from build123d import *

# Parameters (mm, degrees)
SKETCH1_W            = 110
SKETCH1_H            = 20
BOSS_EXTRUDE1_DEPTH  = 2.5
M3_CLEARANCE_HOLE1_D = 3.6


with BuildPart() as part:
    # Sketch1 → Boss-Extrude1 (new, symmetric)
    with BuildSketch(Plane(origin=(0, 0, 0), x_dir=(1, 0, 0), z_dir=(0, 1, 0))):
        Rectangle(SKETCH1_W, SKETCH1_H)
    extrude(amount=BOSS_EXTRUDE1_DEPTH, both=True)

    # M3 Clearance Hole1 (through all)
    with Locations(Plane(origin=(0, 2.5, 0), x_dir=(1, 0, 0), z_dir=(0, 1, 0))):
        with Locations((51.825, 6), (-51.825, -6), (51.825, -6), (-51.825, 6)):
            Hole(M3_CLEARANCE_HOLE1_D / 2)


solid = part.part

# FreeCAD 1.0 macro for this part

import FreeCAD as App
import Part
import Sketcher
from FreeCAD import Vector
Q = App.Units.Quantity


def add_polygon(sketch, points):
    """Adds a closed chain of lines whose ends are joined by coincident constraints."""
    first, n = sketch.GeometryCount, len(points)
    for a, b in zip(points, points[1:] + points[:1]):
        sketch.addGeometry(Part.LineSegment(App.Vector(*a, 0), App.Vector(*b, 0)), False)
    for i in range(n):
        sketch.addConstraint(Sketcher.Constraint("Coincident", first + i, 2, first + (i + 1) % n, 1))

doc = App.newDocument("Part")
body = doc.addObject("PartDesign::Body", "Body")

sketch1 = body.newObject("Sketcher::SketchObject", "Sketch")
sketch1.AttachmentSupport = (doc.getObject("XZ_Plane"), [""])
sketch1.MapMode = "FlatFace"
add_polygon(sketch1, [(-55, -10), (-55, 10), (55, 10), (55, -10)])
sketch1.addConstraint(Sketcher.Constraint("Vertical", 0))
sketch1.addConstraint(Sketcher.Constraint("Horizontal", 1))
sketch1.addConstraint(Sketcher.Constraint("Vertical", 2))
sketch1.addConstraint(Sketcher.Constraint("Horizontal", 3))
sketch1.addConstraint(Sketcher.Constraint("Symmetric", 0, 2, 2, 2, -1, 1))
sketch1.addConstraint(Sketcher.Constraint("DistanceX", 1, 1, 1, 2, Q("110 mm")))
sketch1.addConstraint(Sketcher.Constraint("DistanceY", 0, 1, 0, 2, Q("20 mm")))
pad1 = body.newObject("PartDesign::Pad", "Pad")
pad1.Profile = sketch1
pad1.Length = 5
pad1.Midplane = True

sketch2 = body.newObject("Sketcher::SketchObject", "Sketch001")
sketch2.AttachmentSupport = (doc.getObject("XZ_Plane"), [""])
sketch2.MapMode = "FlatFace"
sketch2.AttachmentOffset = App.Placement(Vector(0, 0, -2.5), App.Rotation())
sketch2.addGeometry(Part.Circle(Vector(51.8, -6, 0), Vector(0, 0, 1), 1.8), False)
sketch2.addGeometry(Part.Circle(Vector(-51.8, 6, 0), Vector(0, 0, 1), 1.8), False)
sketch2.addGeometry(Part.Circle(Vector(51.8, 6, 0), Vector(0, 0, 1), 1.8), False)
sketch2.addGeometry(Part.Circle(Vector(-51.8, -6, 0), Vector(0, 0, 1), 1.8), False)
sketch2.addConstraint(Sketcher.Constraint("Equal", 0, 1))
sketch2.addConstraint(Sketcher.Constraint("Equal", 1, 2))
sketch2.addConstraint(Sketcher.Constraint("Equal", 2, 3))
sketch2.addConstraint(Sketcher.Constraint("Symmetric", 0, 3, 1, 3, -1, 1))
sketch2.addConstraint(Sketcher.Constraint("Symmetric", 2, 3, 3, 3, -1, 1))
sketch2.addConstraint(Sketcher.Constraint("Symmetric", 1, 3, 2, 3, -2))
sketch2.addConstraint(Sketcher.Constraint("Diameter", 0, Q("3.6 mm")))
sketch2.addConstraint(Sketcher.Constraint("DistanceY", 0, 3, -1, 1, Q("6 mm")))
sketch2.addConstraint(Sketcher.Constraint("DistanceX", 1, 3, 0, 3, Q("103.65 mm")))
doc.recompute()
hole = body.newObject("PartDesign::Hole", "Hole")
hole.Profile = sketch2
hole.ThreadType = "None"
hole.Diameter = 3.6
hole.DepthType = "ThroughAll"
hole.Reversed = True

doc.recompute()
